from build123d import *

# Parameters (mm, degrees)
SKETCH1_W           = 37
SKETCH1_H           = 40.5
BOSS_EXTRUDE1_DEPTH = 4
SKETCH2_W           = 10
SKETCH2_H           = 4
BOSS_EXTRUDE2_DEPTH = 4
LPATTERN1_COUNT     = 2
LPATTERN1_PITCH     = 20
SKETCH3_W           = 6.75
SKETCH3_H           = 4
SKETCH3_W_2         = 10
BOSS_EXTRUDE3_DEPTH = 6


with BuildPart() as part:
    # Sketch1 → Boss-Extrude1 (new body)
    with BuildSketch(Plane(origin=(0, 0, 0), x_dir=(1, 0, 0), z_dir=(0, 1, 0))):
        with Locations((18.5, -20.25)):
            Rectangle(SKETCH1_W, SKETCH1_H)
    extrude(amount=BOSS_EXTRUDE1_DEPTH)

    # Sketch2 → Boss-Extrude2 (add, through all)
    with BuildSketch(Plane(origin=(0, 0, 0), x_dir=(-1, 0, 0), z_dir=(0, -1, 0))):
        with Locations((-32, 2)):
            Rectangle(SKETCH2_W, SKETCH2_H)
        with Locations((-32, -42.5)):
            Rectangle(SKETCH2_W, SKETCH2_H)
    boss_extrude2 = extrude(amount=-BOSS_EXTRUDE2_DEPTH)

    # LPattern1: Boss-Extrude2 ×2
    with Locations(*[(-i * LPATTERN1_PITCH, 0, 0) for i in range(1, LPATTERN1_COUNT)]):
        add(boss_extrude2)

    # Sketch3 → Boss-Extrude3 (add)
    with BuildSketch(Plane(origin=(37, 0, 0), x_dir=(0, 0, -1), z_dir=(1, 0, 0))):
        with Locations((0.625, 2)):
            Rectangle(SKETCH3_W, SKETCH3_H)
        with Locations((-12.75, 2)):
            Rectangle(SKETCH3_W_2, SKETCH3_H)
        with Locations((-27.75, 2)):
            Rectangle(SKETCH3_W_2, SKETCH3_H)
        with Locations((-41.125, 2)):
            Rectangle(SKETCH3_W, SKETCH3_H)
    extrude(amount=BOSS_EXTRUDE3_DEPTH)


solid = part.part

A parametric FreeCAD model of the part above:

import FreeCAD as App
import Part
import Sketcher
Q = App.Units.Quantity


def add_polygon(sketch, points):
    """Adds a closed chain of lines whose ends are joined by coincident constraints."""
    first, n = sketch.GeometryCount, len(points)
    for a, b in zip(points, points[1:] + points[:1]):
        sketch.addGeometry(Part.LineSegment(App.Vector(*a, 0), App.Vector(*b, 0)), False)
    for i in range(n):
        sketch.addConstraint(Sketcher.Constraint("Coincident", first + i, 2, first + (i + 1) % n, 1))

doc = App.newDocument("Part")
body = doc.addObject("PartDesign::Body", "Body")

# Sketch on XZ plane
sketch1 = body.newObject("Sketcher::SketchObject", "Sketch")
sketch1.AttachmentSupport = (doc.getObject("XZ_Plane"), [""])
sketch1.MapMode = "FlatFace"
add_polygon(sketch1, [(0, 0), (0, 40), (37, 40), (37, 0)])  # lines 0-3
sketch1.addConstraint([
    Sketcher.Constraint("Vertical", 0),
    Sketcher.Constraint("Horizontal", 1),
    Sketcher.Constraint("Vertical", 2),
    Sketcher.Constraint("Horizontal", 3),
    Sketcher.Constraint("Coincident", 3, 2, -1, 1),
    Sketcher.Constraint("DistanceX", 1, 1, 1, 2, Q("37 mm")),
    Sketcher.Constraint("DistanceY", 0, 1, 0, 2, Q("40.5 mm")),
])
pad1 = body.newObject("PartDesign::Pad", "Pad")
pad1.Profile = sketch1
pad1.Length = 4
pad1.Reversed = True

# Sketch on XZ plane
sketch2 = body.newObject("Sketcher::SketchObject", "Sketch001")
sketch2.AttachmentSupport = (doc.getObject("XZ_Plane"), [""])
sketch2.MapMode = "FlatFace"
add_polygon(sketch2, [(37, -4), (37, 0), (27, 0), (27, -4)])  # lines 0-3
add_polygon(sketch2, [(37, 40.5), (37, 44.5), (27, 44.5), (27, 40.5)])  # lines 4-7
sketch2.addConstraint([
    Sketcher.Constraint("Vertical", 0),
    Sketcher.Constraint("Horizontal", 1),
    Sketcher.Constraint("Vertical", 2),
    Sketcher.Constraint("Horizontal", 3),
    Sketcher.Constraint("Vertical", 4),
    Sketcher.Constraint("Horizontal", 5),
    Sketcher.Constraint("Vertical", 6),
    Sketcher.Constraint("Horizontal", 7),
    Sketcher.Constraint("PointOnObject", 0, 2, -1),
    Sketcher.Constraint("Vertical", 3, 2, 4, 2),
    Sketcher.Constraint("Vertical", 2, 2, 5, 2),
    Sketcher.Constraint("Equal", 2, 4),
    Sketcher.Constraint("DistanceX", 1, 2, 1, 1, Q("10 mm")),
    Sketcher.Constraint("DistanceY", 0, 1, 0, 2, Q("4 mm")),
    Sketcher.Constraint("DistanceX", -1, 1, 0, 2, Q("37 mm")),
    Sketcher.Constraint("DistanceY", -1, 1, 4, 2, Q("44.5 mm")),
])
pad2 = body.newObject("PartDesign::Pad", "Pad001")
pad2.Profile = sketch2
pad2.Type = "UpToLast"
pad2.Reversed = True
doc.recompute()

linearpattern = body.newObject("PartDesign::LinearPattern", "LinearPattern")
linearpattern.Originals = [pad2]
linearpattern.Direction = (doc.getObject("X_Axis"), [""])
linearpattern.Mode = "offset"
linearpattern.Offset = 20
linearpattern.Occurrences = 2
linearpattern.Reversed = True
body.Tip = linearpattern

# Sketch on YZ plane
sketch3 = body.newObject("Sketcher::SketchObject", "Sketch002")
sketch3.AttachmentSupport = (doc.getObject("YZ_Plane"), [""])
sketch3.MapMode = "FlatFace"
sketch3.AttachmentOffset = App.Placement(App.Vector(0, 0, 37), App.Rotation())
add_polygon(sketch3, [(4, 2.8), (0, 2.8), (0, -4), (4, -4)])  # lines 0-3
add_polygon(sketch3, [(4, 17.8), (0, 17.8), (0, 7.8), (4, 7.8)])  # lines 4-7
add_polygon(sketch3, [(4, 32.8), (0, 32.8), (0, 22.8), (4, 22.8)])  # lines 8-11
add_polygon(sketch3, [(4, 44.5), (0, 44.5), (0, 37.8), (4, 37.8)])  # lines 12-15
sketch3.addConstraint([
    Sketcher.Constraint("Horizontal", 0),
    Sketcher.Constraint("Vertical", 1),
    Sketcher.Constraint("Horizontal", 2),
    Sketcher.Constraint("Vertical", 3),
    Sketcher.Constraint("Horizontal", 4),
    Sketcher.Constraint("Vertical", 5),
    Sketcher.Constraint("Horizontal", 6),
    Sketcher.Constraint("Vertical", 7),
    Sketcher.Constraint("Horizontal", 8),
    Sketcher.Constraint("Vertical", 9),
    Sketcher.Constraint("Horizontal", 10),
    Sketcher.Constraint("Vertical", 11),
    Sketcher.Constraint("Horizontal", 12),
    Sketcher.Constraint("Vertical", 13),
    Sketcher.Constraint("Horizontal", 14),
    Sketcher.Constraint("Vertical", 15),
    Sketcher.Constraint("PointOnObject", 0, 2, -2),
    Sketcher.Constraint("PointOnObject", 4, 2, -2),
    Sketcher.Constraint("PointOnObject", 8, 2, -2),
    Sketcher.Constraint("PointOnObject", 12, 2, -2),
    Sketcher.Constraint("Vertical", 3, 2, 6, 2),
    Sketcher.Constraint("Vertical", 7, 2, 10, 2),
    Sketcher.Constraint("Vertical", 11, 2, 14, 2),
    Sketcher.Constraint("Equal", 7, 9),
    Sketcher.Constraint("Equal", 3, 13),
    Sketcher.Constraint("DistanceX", 0, 2, 0, 1, Q("4 mm")),
    Sketcher.Constraint("DistanceY", 5, 2, 5, 1, Q("10 mm")),
    Sketcher.Constraint("DistanceY", 1, 2, -1, 1, Q("4 mm")),
    Sketcher.Constraint("DistanceY", 0, 2, 4, 2, Q("15 mm")),
    Sketcher.Constraint("DistanceY", 4, 2, 8, 2, Q("15 mm")),
    Sketcher.Constraint("DistanceY", 8, 2, 13, 2, Q("5 mm")),
    Sketcher.Constraint("DistanceY", 1, 2, 1, 1, Q("6.75 mm")),
])
pad3 = body.newObject("PartDesign::Pad", "Pad002")
pad3.Profile = sketch3
pad3.Length = 6

doc.recompute()
